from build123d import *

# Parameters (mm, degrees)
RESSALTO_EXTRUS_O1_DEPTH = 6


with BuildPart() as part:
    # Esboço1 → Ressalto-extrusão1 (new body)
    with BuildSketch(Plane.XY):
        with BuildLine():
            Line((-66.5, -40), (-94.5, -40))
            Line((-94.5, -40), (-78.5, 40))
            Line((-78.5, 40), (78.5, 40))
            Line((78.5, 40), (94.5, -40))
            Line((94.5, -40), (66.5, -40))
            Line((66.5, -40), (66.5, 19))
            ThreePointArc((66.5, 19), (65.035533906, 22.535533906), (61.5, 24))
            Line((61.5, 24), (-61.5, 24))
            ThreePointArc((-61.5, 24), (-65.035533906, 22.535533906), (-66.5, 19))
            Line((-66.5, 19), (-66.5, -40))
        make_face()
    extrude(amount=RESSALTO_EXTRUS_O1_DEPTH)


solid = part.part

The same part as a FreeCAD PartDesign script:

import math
import FreeCAD as App
import Part
import Sketcher

V = App.Vector

doc = App.newDocument("Part")
body = doc.addObject("PartDesign::Body", "Body")

# Sketch on XY plane
sketch1 = body.newObject("Sketcher::SketchObject", "Sketch")
sketch1.AttachmentSupport = (doc.getObject("XY_Plane"), [""])
sketch1.MapMode = "FlatFace"
sketch1.addGeometry([
    Part.LineSegment(V(-94, -40, 0), V(-66, -40, 0)),  # 0
    Part.LineSegment(V(-66, -40, 0), V(-66, 19, 0)),  # 1
    Part.ArcOfCircle(Part.Circle(V(-62, 19, 0), V(0, 0, 1), 5), math.radians(90), math.radians(180)),  # 2
    Part.LineSegment(V(-62, 24, 0), V(62, 24, 0)),  # 3
    Part.ArcOfCircle(Part.Circle(V(62, 19, 0), V(0, 0, 1), 5), math.radians(0), math.radians(90)),  # 4
    Part.LineSegment(V(66, 19, 0), V(66, -40, 0)),  # 5
    Part.LineSegment(V(66, -40, 0), V(94, -40, 0)),  # 6
    Part.LineSegment(V(94, -40, 0), V(78, 40, 0)),  # 7
    Part.LineSegment(V(78, 40, 0), V(-78, 40, 0)),  # 8
    Part.LineSegment(V(-78, 40, 0), V(-94, -40, 0)),  # 9
], False)
sketch1.addConstraint([
    Sketcher.Constraint("Coincident", 0, 2, 1, 1),
    Sketcher.Constraint("Tangent", 1, 2, 2, 2),
    Sketcher.Constraint("Tangent", 2, 1, 3, 1),
    Sketcher.Constraint("Tangent", 3, 2, 4, 2),
    Sketcher.Constraint("Tangent", 4, 1, 5, 1),
    Sketcher.Constraint("Coincident", 5, 2, 6, 1),
    Sketcher.Constraint("Coincident", 6, 2, 7, 1),
    Sketcher.Constraint("Coincident", 7, 2, 8, 1),
    Sketcher.Constraint("Coincident", 8, 2, 9, 1),
    Sketcher.Constraint("Coincident", 9, 2, 0, 1),
    Sketcher.Constraint("Horizontal", 0),
    Sketcher.Constraint("Vertical", 1),
    Sketcher.Constraint("Horizontal", 3),
    Sketcher.Constraint("Vertical", 5),
    Sketcher.Constraint("Horizontal", 6),
    Sketcher.Constraint("Horizontal", 8),
    Sketcher.Constraint("Equal", 2, 4),
    Sketcher.Constraint("Symmetric", 0, 2, 5, 2, -2),
    Sketcher.Constraint("Equal", 0, 6),
    Sketcher.Constraint("Equal", 7, 9),
    Sketcher.Constraint("Radius", 2, 5.0),
    Sketcher.Constraint("DistanceX", 0, 1, 0, 2, 28.0),
    Sketcher.Constraint("DistanceX", 3, 1, 3, 2, 123.0),
    Sketcher.Constraint("DistanceX", 8, 2, 8, 1, 157.0),
    Sketcher.Constraint("DistanceY", 1, 1, 1, 2, 59.0),
    Sketcher.Constraint("DistanceY", -1, 1, 2, 3, 19.0),
    Sketcher.Constraint("DistanceY", -1, 1, 7, 2, 40.0),
])
pad1 = body.newObject("PartDesign::Pad", "Pad")
pad1.Profile = sketch1
pad1.Length = 6

doc.recompute()
